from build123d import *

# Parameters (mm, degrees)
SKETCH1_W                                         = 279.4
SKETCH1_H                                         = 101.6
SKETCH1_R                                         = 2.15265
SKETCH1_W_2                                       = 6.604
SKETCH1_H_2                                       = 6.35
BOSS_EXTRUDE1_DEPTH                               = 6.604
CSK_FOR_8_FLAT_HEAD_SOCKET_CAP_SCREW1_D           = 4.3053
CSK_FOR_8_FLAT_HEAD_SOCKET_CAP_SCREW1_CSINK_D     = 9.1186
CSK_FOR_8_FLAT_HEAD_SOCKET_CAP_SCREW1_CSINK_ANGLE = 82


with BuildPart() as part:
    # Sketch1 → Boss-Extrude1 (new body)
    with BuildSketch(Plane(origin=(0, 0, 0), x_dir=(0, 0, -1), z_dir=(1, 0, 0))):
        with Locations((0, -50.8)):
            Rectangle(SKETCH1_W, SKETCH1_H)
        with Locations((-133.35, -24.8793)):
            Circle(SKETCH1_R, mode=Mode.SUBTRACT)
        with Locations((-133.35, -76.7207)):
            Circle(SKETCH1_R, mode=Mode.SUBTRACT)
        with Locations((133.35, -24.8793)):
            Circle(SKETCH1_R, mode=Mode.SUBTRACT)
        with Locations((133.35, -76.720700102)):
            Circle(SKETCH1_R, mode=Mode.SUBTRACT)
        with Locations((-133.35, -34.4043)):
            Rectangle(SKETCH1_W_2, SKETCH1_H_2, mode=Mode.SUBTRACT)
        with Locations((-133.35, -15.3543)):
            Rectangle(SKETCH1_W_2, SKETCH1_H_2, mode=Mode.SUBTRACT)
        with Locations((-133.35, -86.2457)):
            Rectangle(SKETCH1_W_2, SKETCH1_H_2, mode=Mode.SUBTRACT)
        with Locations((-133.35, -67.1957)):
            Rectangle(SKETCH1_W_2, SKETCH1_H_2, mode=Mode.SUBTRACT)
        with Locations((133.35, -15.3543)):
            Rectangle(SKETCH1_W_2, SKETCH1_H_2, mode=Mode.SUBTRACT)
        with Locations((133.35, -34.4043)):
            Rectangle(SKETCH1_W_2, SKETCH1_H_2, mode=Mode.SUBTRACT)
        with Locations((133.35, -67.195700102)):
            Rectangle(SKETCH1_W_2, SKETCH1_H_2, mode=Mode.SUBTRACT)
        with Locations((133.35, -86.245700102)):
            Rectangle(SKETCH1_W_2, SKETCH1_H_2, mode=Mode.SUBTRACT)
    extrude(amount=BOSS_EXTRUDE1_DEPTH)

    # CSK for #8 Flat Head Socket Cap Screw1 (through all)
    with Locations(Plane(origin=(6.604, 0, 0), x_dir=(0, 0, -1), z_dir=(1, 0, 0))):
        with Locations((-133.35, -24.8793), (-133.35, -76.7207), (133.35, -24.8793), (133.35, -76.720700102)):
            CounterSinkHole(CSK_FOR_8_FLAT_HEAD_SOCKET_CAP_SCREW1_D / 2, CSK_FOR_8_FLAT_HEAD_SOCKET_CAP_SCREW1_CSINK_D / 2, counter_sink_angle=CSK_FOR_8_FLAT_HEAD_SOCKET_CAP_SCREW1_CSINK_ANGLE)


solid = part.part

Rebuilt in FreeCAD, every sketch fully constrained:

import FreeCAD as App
import Part
import Sketcher
from FreeCAD import Vector
Q = App.Units.Quantity


def add_polygon(sketch, points):
    """Adds a closed chain of lines whose ends are joined by coincident constraints."""
    first, n = sketch.GeometryCount, len(points)
    for a, b in zip(points, points[1:] + points[:1]):
        sketch.addGeometry(Part.LineSegment(App.Vector(*a, 0), App.Vector(*b, 0)), False)
    for i in range(n):
        sketch.addConstraint(Sketcher.Constraint("Coincident", first + i, 2, first + (i + 1) % n, 1))

doc = App.newDocument("Part")
params = doc.addObject("Spreadsheet::Sheet", "Params")
for row, (alias, value) in enumerate([
    ("sketch1_width", "4 in"),
    ("sketch1_height", "11 in"),
    ("sketch1_width2", "0.25 in"),
    ("sketch1_height2", "0.26 in"),
    ("pad1_length", "0.26 in"),
    ("hole_diameter", "0.1695 in"),
    ("hole_csink_diameter", "0.359 in"),
], start=1):
    params.set(f"A{row}", alias)
    params.set(f"B{row}", "=" + value)
    params.setAlias(f"B{row}", alias)

body = doc.addObject("PartDesign::Body", "Body")

# Sketch on YZ plane
sketch1 = body.newObject("Sketcher::SketchObject", "Sketch")
sketch1.AttachmentSupport = (doc.getObject("YZ_Plane"), [""])
sketch1.MapMode = "FlatFace"
add_polygon(sketch1, [(0, 139.7), (-101.6, 139.7), (-101.6, -139.7), (0, -139.7)])  # lines 0-3
add_polygon(sketch1, [(-89.4, 130), (-89.4, 136.7), (-83.1, 136.7), (-83.1, 130)])  # lines 4-7
sketch1.addGeometry(Part.Circle(Vector(-76.7, 133.3, 0), Vector(0, 0, 1), 2.2), False)  # 8
add_polygon(sketch1, [(-70.4, 130), (-70.4, 136.7), (-64, 136.7), (-64, 130)])  # lines 9-12
add_polygon(sketch1, [(-89.4, -136.7), (-89.4, -130), (-83.1, -130), (-83.1, -136.7)])  # lines 13-16
sketch1.addGeometry(Part.Circle(Vector(-76.7, -133.3, 0), Vector(0, 0, 1), 2.2), False)  # 17
add_polygon(sketch1, [(-70.4, -136.7), (-70.4, -130), (-64, -130), (-64, -136.7)])  # lines 18-21
add_polygon(sketch1, [(-37.6, 130), (-37.6, 136.7), (-31.2, 136.7), (-31.2, 130)])  # lines 22-25
sketch1.addGeometry(Part.Circle(Vector(-24.9, 133.3, 0), Vector(0, 0, 1), 2.2), False)  # 26
add_polygon(sketch1, [(-18.5, 130), (-18.5, 136.7), (-12.2, 136.7), (-12.2, 130)])  # lines 27-30
add_polygon(sketch1, [(-37.6, -136.7), (-37.6, -130), (-31.2, -130), (-31.2, -136.7)])  # lines 31-34
sketch1.addGeometry(Part.Circle(Vector(-24.9, -133.3, 0), Vector(0, 0, 1), 2.2), False)  # 35
add_polygon(sketch1, [(-18.5, -136.7), (-18.5, -130), (-12.2, -130), (-12.2, -136.7)])  # lines 36-39
sketch1.addConstraint([
    Sketcher.Constraint("Horizontal", 0),
    Sketcher.Constraint("Vertical", 1),
    Sketcher.Constraint("Horizontal", 2),
    Sketcher.Constraint("Vertical", 3),
    Sketcher.Constraint("Vertical", 4),
    Sketcher.Constraint("Horizontal", 5),
    Sketcher.Constraint("Vertical", 6),
    Sketcher.Constraint("Horizontal", 7),
    Sketcher.Constraint("Vertical", 9),
    Sketcher.Constraint("Horizontal", 10),
    Sketcher.Constraint("Vertical", 11),
    Sketcher.Constraint("Horizontal", 12),
    Sketcher.Constraint("Vertical", 13),
    Sketcher.Constraint("Horizontal", 14),
    Sketcher.Constraint("Vertical", 15),
    Sketcher.Constraint("Horizontal", 16),
    Sketcher.Constraint("Vertical", 18),
    Sketcher.Constraint("Horizontal", 19),
    Sketcher.Constraint("Vertical", 20),
    Sketcher.Constraint("Horizontal", 21),
    Sketcher.Constraint("Vertical", 22),
    Sketcher.Constraint("Horizontal", 23),
    Sketcher.Constraint("Vertical", 24),
    Sketcher.Constraint("Horizontal", 25),
    Sketcher.Constraint("Vertical", 27),
    Sketcher.Constraint("Horizontal", 28),
    Sketcher.Constraint("Vertical", 29),
    Sketcher.Constraint("Horizontal", 30),
    Sketcher.Constraint("Vertical", 31),
    Sketcher.Constraint("Horizontal", 32),
    Sketcher.Constraint("Vertical", 33),
    Sketcher.Constraint("Horizontal", 34),
    Sketcher.Constraint("Vertical", 36),
    Sketcher.Constraint("Horizontal", 37),
    Sketcher.Constraint("Vertical", 38),
    Sketcher.Constraint("Horizontal", 39),
    Sketcher.Constraint("Equal", 8, 17),
    Sketcher.Constraint("Equal", 17, 26),
    Sketcher.Constraint("Equal", 26, 35),
    Sketcher.Constraint("Symmetric", 2, 2, 3, 2, -1, 1),
    Sketcher.Constraint("Symmetric", 8, 3, 17, 3, -1),
    Sketcher.Constraint("Symmetric", 26, 3, 35, 3, -1),
    Sketcher.Constraint("Symmetric", 7, 2, 13, 2, -1),
    Sketcher.Constraint("Symmetric", 5, 2, 15, 2, -1),
    Sketcher.Constraint("Symmetric", 12, 2, 18, 2, -1),
    Sketcher.Constraint("Symmetric", 10, 2, 20, 2, -1),
    Sketcher.Constraint("Symmetric", 25, 2, 31, 2, -1),
    Sketcher.Constraint("Symmetric", 23, 2, 33, 2, -1),
    Sketcher.Constraint("Symmetric", 30, 2, 36, 2, -1),
    Sketcher.Constraint("Symmetric", 28, 2, 38, 2, -1),
    Sketcher.Constraint("Horizontal", 8, 3, 26, 3),
    Sketcher.Constraint("Horizontal", 5, 2, 9, 2),
    Sketcher.Constraint("Horizontal", 7, 2, 11, 2),
    Sketcher.Constraint("Horizontal", 10, 2, 22, 2),
    Sketcher.Constraint("Horizontal", 12, 2, 24, 2),
    Sketcher.Constraint("Horizontal", 23, 2, 27, 2),
    Sketcher.Constraint("Horizontal", 25, 2, 29, 2),
    Sketcher.Constraint("Equal", 7, 10),
    Sketcher.Constraint("Equal", 21, 23),
    Sketcher.Constraint("Equal", 25, 28),
    Sketcher.Constraint("DistanceX", 0, 2, 0, 1, Q("4 in")),
    Sketcher.Constraint("DistanceY", 1, 2, 1, 1, Q("11 in")),
    Sketcher.Constraint("DistanceX", 4, 2, 10, 2, Q("1 in")),
    Sketcher.Constraint("Diameter", 8, Q("0.1695 in")),
    Sketcher.Constraint("DistanceX", 5, 1, 5, 2, Q("0.25 in")),
    Sketcher.Constraint("DistanceY", 4, 1, 4, 2, Q("0.26 in")),
    Sketcher.Constraint("DistanceY", 17, 3, 8, 3, Q("10.5 in")),
    Sketcher.Constraint("DistanceX", 4, 2, 8, 3, Q("0.5 in")),
    Sketcher.Constraint("DistanceX", 22, 2, 26, 3, Q("0.5 in")),
    Sketcher.Constraint("DistanceX", 23, 2, 27, 2, Q("0.5 in")),
    Sketcher.Constraint("DistanceY", -1, 1, 4, 2, Q("5.38 in")),
    Sketcher.Constraint("DistanceX", 8, 3, 26, 3, Q("2.041 in")),
    Sketcher.Constraint("DistanceX", 8, 3, -1, 1, Q("3.0205 in")),
])
sketch1.setExpression("Constraints[96]", "Params.sketch1_width")
sketch1.setExpression("Constraints[97]", "Params.sketch1_height")
sketch1.setExpression("Constraints[100]", "Params.sketch1_width2")
sketch1.setExpression("Constraints[101]", "Params.sketch1_height2")
pad1 = body.newObject("PartDesign::Pad", "Pad")
pad1.Profile = sketch1
pad1.setExpression("Length", "Params.pad1_length")

# Sketch on YZ plane
sketch2 = body.newObject("Sketcher::SketchObject", "Sketch001")
sketch2.AttachmentSupport = (doc.getObject("YZ_Plane"), [""])
sketch2.MapMode = "FlatFace"
sketch2.AttachmentOffset = App.Placement(Vector(0, 0, 0.26 * 25.4), App.Rotation())
sketch2.addGeometry([
    Part.Circle(Vector(-24.9, 133.3, 0), Vector(0, 0, 1), 2.2),
    Part.Circle(Vector(-76.7, 133.3, 0), Vector(0, 0, 1), 2.2),
    Part.Circle(Vector(-24.9, -133.3, 0), Vector(0, 0, 1), 2.2),
    Part.Circle(Vector(-76.7, -133.3, 0), Vector(0, 0, 1), 2.2),
], False)
sketch2.addConstraint([
    Sketcher.Constraint("Equal", 0, 1),
    Sketcher.Constraint("Equal", 1, 2),
    Sketcher.Constraint("Equal", 2, 3),
    Sketcher.Constraint("Symmetric", 0, 3, 2, 3, -1),
    Sketcher.Constraint("Symmetric", 1, 3, 3, 3, -1),
    Sketcher.Constraint("Horizontal", 0, 3, 1, 3),
    Sketcher.Constraint("Diameter", 0, Q("0.1695 in")),
    Sketcher.Constraint("DistanceY", 2, 3, 0, 3, Q("10.5 in")),
    Sketcher.Constraint("DistanceX", 1, 3, 0, 3, Q("2.041 in")),
    Sketcher.Constraint("DistanceX", 0, 3, -1, 1, Q("0.9795 in")),
])
doc.recompute()
hole = body.newObject("PartDesign::Hole", "Hole")
hole.Profile = sketch2
hole.ThreadType = "None"
hole.setExpression("Diameter", "Params.hole_diameter")
hole.DepthType = "ThroughAll"
hole.HoleCutType = "Countersink"
hole.setExpression("HoleCutDiameter", "Params.hole_csink_diameter")
hole.HoleCutCountersinkAngle = 82

doc.recompute()
